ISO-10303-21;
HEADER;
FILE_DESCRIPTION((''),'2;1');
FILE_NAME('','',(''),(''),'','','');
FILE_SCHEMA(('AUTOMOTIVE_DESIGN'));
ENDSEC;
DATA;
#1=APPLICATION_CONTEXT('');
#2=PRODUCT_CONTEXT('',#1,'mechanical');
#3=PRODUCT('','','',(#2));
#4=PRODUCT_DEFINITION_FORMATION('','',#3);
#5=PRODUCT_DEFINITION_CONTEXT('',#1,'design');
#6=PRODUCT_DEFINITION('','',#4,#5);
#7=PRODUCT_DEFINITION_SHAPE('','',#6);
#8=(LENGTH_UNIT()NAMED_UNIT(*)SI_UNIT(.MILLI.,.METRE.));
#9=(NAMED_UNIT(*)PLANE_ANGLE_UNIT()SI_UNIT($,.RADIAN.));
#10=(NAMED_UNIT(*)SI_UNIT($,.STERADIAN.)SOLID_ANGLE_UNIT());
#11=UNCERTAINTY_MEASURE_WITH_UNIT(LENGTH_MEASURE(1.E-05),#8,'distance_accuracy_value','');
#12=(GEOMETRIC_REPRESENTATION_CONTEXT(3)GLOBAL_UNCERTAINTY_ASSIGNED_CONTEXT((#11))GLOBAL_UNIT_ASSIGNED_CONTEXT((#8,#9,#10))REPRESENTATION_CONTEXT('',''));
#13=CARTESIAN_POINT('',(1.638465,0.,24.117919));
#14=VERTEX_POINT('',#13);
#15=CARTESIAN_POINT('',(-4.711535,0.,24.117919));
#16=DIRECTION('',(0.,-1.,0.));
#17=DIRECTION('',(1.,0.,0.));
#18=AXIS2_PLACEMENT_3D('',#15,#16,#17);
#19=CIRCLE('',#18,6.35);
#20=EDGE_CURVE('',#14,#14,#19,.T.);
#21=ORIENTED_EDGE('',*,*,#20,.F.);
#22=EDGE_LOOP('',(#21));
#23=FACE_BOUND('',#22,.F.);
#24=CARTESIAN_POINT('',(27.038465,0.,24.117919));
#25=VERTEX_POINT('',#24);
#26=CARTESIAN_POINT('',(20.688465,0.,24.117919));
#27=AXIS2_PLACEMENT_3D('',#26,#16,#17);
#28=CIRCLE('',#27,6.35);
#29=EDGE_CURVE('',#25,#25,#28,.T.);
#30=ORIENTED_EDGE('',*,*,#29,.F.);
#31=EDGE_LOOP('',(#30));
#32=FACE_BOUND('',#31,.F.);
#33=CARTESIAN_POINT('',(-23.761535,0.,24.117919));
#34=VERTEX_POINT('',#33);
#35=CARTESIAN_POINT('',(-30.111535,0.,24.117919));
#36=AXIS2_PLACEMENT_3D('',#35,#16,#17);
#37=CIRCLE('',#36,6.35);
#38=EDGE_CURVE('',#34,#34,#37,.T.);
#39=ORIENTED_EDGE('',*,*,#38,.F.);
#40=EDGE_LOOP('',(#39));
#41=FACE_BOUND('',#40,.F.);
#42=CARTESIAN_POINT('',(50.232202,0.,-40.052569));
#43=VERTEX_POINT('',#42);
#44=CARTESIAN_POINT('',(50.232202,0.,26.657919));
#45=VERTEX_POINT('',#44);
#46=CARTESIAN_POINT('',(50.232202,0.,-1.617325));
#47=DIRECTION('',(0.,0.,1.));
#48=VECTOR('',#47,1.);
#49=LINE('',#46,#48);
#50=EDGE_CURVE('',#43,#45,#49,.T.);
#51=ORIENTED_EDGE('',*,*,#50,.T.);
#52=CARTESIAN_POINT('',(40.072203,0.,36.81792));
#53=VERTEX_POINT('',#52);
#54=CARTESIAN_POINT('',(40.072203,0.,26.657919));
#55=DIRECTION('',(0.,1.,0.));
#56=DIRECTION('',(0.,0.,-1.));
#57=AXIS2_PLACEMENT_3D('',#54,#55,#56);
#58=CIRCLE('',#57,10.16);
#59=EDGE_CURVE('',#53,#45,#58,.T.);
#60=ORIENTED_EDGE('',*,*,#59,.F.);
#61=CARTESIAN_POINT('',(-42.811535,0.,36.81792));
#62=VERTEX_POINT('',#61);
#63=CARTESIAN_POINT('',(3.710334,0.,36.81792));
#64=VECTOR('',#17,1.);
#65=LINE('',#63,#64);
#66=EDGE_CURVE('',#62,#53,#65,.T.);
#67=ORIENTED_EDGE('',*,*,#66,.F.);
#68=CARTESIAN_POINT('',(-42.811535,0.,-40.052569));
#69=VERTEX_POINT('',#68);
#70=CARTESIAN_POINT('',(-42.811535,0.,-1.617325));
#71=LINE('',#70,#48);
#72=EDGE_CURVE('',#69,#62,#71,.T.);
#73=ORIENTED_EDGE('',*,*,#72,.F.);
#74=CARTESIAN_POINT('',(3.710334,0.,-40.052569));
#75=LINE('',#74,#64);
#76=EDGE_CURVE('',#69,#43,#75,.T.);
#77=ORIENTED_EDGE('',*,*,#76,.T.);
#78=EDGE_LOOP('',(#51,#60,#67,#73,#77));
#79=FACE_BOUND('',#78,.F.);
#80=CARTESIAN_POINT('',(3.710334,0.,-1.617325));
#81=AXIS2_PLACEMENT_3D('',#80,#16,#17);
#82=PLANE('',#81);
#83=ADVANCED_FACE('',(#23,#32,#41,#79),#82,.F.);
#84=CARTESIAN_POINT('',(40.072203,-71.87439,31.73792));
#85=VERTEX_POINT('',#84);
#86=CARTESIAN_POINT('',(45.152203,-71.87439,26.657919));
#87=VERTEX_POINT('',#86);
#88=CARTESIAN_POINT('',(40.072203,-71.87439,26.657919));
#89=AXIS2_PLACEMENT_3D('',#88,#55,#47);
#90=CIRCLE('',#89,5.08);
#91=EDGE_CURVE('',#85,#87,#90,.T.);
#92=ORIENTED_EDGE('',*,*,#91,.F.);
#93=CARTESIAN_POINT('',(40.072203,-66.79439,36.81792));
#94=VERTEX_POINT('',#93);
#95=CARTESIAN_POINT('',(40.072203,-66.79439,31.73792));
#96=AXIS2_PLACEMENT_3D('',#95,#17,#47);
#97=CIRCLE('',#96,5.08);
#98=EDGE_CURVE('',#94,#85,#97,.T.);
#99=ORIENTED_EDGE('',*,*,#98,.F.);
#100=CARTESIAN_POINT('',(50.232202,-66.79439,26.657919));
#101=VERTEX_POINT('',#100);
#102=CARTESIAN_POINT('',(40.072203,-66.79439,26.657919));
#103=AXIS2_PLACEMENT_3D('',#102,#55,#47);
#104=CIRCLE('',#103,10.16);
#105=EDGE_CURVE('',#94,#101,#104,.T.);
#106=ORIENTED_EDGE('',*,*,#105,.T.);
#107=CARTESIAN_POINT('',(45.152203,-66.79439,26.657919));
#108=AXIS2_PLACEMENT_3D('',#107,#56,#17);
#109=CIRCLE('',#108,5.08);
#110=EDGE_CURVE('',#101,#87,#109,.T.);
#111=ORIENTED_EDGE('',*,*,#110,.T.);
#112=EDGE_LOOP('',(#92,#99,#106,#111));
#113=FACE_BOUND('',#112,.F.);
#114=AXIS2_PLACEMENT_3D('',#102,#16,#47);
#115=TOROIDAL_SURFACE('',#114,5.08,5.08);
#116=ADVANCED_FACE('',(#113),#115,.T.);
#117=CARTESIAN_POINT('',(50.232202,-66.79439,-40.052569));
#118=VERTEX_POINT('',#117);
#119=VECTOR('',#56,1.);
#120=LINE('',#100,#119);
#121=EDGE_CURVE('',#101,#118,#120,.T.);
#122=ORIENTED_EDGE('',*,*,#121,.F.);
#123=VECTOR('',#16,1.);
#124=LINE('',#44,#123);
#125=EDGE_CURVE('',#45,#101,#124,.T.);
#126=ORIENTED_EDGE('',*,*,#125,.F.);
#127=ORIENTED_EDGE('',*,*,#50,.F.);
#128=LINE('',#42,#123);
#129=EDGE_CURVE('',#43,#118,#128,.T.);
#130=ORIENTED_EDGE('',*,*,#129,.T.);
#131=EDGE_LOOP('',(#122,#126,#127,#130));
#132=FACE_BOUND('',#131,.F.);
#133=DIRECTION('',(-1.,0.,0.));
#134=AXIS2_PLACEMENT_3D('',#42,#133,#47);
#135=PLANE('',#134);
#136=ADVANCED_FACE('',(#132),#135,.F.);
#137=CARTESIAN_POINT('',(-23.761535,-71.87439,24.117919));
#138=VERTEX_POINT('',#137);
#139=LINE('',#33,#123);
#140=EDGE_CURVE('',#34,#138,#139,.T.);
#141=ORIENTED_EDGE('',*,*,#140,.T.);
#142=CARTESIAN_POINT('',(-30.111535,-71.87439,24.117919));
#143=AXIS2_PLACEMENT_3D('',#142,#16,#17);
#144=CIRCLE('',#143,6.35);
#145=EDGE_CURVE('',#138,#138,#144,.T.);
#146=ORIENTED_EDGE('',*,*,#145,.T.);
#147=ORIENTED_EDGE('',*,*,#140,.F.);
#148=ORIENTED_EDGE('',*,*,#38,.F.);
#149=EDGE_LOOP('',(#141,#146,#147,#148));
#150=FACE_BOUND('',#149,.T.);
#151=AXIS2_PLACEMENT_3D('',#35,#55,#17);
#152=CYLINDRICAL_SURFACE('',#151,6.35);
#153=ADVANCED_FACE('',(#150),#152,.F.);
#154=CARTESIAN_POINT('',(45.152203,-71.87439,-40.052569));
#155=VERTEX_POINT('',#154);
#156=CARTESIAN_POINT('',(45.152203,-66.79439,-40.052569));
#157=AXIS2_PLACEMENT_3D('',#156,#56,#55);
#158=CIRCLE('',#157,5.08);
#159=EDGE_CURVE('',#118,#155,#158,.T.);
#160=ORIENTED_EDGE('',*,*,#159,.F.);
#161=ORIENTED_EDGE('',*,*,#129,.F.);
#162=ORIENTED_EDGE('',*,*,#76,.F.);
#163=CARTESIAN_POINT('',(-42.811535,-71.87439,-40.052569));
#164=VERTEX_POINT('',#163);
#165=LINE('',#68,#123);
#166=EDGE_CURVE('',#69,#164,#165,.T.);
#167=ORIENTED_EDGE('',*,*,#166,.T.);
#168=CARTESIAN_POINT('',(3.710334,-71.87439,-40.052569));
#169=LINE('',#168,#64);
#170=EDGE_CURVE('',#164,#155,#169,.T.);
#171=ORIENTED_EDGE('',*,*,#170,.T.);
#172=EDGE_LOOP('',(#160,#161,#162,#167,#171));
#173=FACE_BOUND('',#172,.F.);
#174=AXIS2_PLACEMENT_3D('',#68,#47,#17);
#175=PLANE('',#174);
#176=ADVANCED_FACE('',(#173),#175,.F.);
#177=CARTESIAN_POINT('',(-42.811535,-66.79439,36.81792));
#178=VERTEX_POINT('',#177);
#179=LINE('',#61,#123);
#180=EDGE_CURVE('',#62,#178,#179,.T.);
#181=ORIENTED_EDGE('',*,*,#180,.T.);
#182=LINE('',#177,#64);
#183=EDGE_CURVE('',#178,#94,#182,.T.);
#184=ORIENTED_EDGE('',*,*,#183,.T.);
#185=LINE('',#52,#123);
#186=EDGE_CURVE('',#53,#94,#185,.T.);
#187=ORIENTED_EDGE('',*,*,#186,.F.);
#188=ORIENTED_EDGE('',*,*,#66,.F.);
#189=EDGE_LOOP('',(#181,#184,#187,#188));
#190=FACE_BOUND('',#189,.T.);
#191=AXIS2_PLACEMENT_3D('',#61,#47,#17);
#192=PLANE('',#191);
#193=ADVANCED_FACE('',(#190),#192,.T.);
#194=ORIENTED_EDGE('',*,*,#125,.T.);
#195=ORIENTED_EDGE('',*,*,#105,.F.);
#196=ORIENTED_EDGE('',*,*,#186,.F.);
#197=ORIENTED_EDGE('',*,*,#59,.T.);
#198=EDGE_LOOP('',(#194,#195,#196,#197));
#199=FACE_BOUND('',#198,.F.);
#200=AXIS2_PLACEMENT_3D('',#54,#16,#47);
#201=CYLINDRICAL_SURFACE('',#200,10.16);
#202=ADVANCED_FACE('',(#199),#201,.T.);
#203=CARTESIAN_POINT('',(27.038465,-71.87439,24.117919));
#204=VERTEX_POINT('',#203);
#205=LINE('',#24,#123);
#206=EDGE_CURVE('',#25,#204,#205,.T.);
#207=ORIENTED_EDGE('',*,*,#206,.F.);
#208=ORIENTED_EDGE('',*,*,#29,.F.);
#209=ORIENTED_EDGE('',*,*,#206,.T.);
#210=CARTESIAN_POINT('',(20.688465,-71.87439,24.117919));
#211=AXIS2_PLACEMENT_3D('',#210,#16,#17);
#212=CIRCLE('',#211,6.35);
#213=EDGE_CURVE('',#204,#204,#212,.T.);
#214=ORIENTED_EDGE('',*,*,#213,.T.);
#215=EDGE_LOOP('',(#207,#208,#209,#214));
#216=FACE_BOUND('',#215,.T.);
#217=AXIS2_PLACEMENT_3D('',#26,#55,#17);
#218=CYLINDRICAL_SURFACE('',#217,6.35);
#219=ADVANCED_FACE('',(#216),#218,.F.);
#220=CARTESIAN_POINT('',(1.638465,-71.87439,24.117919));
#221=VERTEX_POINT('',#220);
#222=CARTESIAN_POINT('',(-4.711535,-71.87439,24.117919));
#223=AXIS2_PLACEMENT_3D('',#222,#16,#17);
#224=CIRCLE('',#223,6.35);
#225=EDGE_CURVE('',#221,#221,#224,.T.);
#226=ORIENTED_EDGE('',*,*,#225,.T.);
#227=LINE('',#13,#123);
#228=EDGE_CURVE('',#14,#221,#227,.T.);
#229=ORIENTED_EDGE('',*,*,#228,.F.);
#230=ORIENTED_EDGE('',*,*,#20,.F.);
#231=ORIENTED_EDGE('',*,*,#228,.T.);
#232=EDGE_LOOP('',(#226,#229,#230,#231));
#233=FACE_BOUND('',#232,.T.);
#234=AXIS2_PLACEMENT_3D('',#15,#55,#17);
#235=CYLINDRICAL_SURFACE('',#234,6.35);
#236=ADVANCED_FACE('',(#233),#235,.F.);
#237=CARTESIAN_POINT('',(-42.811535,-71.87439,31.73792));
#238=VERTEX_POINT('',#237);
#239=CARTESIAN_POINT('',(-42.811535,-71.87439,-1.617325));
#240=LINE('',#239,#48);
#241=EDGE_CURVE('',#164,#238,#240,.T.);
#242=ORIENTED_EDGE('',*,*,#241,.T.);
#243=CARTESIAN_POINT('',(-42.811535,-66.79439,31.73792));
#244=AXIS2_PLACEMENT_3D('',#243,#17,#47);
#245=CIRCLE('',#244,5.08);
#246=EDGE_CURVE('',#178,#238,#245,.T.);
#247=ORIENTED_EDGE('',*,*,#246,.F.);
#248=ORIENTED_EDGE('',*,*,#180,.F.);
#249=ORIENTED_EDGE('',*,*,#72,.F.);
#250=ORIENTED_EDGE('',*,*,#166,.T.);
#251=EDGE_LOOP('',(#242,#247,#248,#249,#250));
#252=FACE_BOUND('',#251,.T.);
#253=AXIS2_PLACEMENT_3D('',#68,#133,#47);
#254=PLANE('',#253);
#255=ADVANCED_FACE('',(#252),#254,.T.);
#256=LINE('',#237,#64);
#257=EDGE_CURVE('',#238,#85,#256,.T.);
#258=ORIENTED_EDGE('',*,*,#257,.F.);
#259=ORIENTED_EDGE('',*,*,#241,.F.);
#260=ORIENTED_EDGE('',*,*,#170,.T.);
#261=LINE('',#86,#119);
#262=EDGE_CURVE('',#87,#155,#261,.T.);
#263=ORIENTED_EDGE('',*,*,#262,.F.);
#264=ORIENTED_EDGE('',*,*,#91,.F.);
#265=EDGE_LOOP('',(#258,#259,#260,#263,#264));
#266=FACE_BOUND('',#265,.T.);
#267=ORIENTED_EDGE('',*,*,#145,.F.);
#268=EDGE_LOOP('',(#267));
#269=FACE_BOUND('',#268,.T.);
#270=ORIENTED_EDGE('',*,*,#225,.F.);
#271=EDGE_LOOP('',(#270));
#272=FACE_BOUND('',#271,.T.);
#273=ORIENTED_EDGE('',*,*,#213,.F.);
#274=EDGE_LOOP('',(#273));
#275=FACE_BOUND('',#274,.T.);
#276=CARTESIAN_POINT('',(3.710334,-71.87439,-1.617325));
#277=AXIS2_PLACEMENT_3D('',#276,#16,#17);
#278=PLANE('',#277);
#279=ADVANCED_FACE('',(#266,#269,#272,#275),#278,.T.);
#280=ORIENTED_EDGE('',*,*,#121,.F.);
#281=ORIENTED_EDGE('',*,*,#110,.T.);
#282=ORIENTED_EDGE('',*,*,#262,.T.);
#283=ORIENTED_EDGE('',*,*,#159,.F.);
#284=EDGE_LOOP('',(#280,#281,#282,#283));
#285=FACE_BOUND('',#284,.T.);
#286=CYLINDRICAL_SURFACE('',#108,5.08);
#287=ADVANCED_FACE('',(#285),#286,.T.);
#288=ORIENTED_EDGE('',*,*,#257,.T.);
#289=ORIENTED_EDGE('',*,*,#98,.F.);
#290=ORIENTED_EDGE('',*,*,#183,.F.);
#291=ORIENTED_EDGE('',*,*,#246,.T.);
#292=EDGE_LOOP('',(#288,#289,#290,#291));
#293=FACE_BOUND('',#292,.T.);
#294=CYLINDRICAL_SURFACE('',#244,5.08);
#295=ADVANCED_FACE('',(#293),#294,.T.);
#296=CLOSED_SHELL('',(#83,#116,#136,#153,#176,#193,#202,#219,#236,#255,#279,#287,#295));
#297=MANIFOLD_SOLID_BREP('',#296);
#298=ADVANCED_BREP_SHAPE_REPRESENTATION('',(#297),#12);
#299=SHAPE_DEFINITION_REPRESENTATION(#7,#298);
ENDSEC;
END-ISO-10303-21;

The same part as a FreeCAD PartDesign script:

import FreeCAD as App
import Part
import Sketcher
Q = App.Units.Quantity


def edges_at(feature, points):
    """Names of the edges that pass closest to the given points."""
    edges = feature.Shape.Edges
    near = lambda p: min(range(len(edges)), key=lambda i: edges[i].distToShape(Part.Vertex(*p))[0])
    return sorted({f"Edge{near(p) + 1}" for p in points})


def add_polygon(sketch, points):
    """Adds a closed chain of lines whose ends are joined by coincident constraints."""
    first, n = sketch.GeometryCount, len(points)
    for a, b in zip(points, points[1:] + points[:1]):
        sketch.addGeometry(Part.LineSegment(App.Vector(*a, 0), App.Vector(*b, 0)), False)
    for i in range(n):
        sketch.addConstraint(Sketcher.Constraint("Coincident", first + i, 2, first + (i + 1) % n, 1))

doc = App.newDocument("Part")
body = doc.addObject("PartDesign::Body", "Body")

# Sketch on XZ plane
sketch1 = body.newObject("Sketcher::SketchObject", "Sketch")
sketch1.AttachmentSupport = (doc.getObject("XZ_Plane"), [""])
sketch1.MapMode = "FlatFace"
add_polygon(sketch1, [(-42.811535, 36.81792), (-42.811535, -40.052569), (50.232202, -40.052569), (50.232202, 36.81792)])  # lines 0-3
sketch1.addGeometry(Part.Circle(App.Vector(-30.111535, 24.117919, 0), App.Vector(0, 0, 1), 6.35), False)  # 4
sketch1.addGeometry(Part.Circle(App.Vector(-4.711535, 24.117919, 0), App.Vector(0, 0, 1), 6.35), False)  # 5
sketch1.addGeometry(Part.Circle(App.Vector(20.688465, 24.117919, 0), App.Vector(0, 0, 1), 6.35), False)  # 6
sketch1.addConstraint(Sketcher.Constraint("Vertical", 0))
sketch1.addConstraint(Sketcher.Constraint("Horizontal", 1))
sketch1.addConstraint(Sketcher.Constraint("Vertical", 2))
sketch1.addConstraint(Sketcher.Constraint("Horizontal", 3))
sketch1.addConstraint(Sketcher.Constraint("Equal", 4, 5))
sketch1.addConstraint(Sketcher.Constraint("Equal", 5, 6))
sketch1.addConstraint(Sketcher.Constraint("Horizontal", 4, 3, 5, 3))
sketch1.addConstraint(Sketcher.Constraint("Horizontal", 5, 3, 6, 3))
sketch1.addConstraint(Sketcher.Constraint("Diameter", 4, Q("0.5 in")))
sketch1.addConstraint(Sketcher.Constraint("DistanceX", 4, 3, 5, 3, Q("1 in")))
sketch1.addConstraint(Sketcher.Constraint("DistanceX", 5, 3, 6, 3, Q("1 in")))
sketch1.addConstraint(Sketcher.Constraint("DistanceX", 0, 2, 4, 3, Q("0.5 in")))
sketch1.addConstraint(Sketcher.Constraint("DistanceY", 6, 3, 2, 2, Q("0.5 in")))
sketch1.addConstraint(Sketcher.Constraint("DistanceY", 0, 2, 0, 1, Q("76.870489 mm")))
sketch1.addConstraint(Sketcher.Constraint("DistanceX", 1, 1, 1, 2, Q("93.043737 mm")))
sketch1.addConstraint(Sketcher.Constraint("DistanceY", -1, 1, 4, 3, Q("24.117919 mm")))
sketch1.addConstraint(Sketcher.Constraint("DistanceX", 4, 3, -1, 1, Q("30.111535 mm")))
pad1 = body.newObject("PartDesign::Pad", "Pad")
pad1.Profile = sketch1
pad1.Length = 71.87439
doc.recompute()

fillet = body.newObject("PartDesign::Fillet", "Fillet")
fillet.Base = (pad1, edges_at(pad1, [(50.232, -35.937, 36.818)]))
fillet.Radius = Q("0.4 in")
doc.recompute()

fillet2 = body.newObject("PartDesign::Fillet", "Fillet001")
fillet2.Base = (fillet, edges_at(fillet, [(-1.37, -71.874, 36.818)]))
fillet2.Radius = Q("0.2 in")

doc.recompute()
